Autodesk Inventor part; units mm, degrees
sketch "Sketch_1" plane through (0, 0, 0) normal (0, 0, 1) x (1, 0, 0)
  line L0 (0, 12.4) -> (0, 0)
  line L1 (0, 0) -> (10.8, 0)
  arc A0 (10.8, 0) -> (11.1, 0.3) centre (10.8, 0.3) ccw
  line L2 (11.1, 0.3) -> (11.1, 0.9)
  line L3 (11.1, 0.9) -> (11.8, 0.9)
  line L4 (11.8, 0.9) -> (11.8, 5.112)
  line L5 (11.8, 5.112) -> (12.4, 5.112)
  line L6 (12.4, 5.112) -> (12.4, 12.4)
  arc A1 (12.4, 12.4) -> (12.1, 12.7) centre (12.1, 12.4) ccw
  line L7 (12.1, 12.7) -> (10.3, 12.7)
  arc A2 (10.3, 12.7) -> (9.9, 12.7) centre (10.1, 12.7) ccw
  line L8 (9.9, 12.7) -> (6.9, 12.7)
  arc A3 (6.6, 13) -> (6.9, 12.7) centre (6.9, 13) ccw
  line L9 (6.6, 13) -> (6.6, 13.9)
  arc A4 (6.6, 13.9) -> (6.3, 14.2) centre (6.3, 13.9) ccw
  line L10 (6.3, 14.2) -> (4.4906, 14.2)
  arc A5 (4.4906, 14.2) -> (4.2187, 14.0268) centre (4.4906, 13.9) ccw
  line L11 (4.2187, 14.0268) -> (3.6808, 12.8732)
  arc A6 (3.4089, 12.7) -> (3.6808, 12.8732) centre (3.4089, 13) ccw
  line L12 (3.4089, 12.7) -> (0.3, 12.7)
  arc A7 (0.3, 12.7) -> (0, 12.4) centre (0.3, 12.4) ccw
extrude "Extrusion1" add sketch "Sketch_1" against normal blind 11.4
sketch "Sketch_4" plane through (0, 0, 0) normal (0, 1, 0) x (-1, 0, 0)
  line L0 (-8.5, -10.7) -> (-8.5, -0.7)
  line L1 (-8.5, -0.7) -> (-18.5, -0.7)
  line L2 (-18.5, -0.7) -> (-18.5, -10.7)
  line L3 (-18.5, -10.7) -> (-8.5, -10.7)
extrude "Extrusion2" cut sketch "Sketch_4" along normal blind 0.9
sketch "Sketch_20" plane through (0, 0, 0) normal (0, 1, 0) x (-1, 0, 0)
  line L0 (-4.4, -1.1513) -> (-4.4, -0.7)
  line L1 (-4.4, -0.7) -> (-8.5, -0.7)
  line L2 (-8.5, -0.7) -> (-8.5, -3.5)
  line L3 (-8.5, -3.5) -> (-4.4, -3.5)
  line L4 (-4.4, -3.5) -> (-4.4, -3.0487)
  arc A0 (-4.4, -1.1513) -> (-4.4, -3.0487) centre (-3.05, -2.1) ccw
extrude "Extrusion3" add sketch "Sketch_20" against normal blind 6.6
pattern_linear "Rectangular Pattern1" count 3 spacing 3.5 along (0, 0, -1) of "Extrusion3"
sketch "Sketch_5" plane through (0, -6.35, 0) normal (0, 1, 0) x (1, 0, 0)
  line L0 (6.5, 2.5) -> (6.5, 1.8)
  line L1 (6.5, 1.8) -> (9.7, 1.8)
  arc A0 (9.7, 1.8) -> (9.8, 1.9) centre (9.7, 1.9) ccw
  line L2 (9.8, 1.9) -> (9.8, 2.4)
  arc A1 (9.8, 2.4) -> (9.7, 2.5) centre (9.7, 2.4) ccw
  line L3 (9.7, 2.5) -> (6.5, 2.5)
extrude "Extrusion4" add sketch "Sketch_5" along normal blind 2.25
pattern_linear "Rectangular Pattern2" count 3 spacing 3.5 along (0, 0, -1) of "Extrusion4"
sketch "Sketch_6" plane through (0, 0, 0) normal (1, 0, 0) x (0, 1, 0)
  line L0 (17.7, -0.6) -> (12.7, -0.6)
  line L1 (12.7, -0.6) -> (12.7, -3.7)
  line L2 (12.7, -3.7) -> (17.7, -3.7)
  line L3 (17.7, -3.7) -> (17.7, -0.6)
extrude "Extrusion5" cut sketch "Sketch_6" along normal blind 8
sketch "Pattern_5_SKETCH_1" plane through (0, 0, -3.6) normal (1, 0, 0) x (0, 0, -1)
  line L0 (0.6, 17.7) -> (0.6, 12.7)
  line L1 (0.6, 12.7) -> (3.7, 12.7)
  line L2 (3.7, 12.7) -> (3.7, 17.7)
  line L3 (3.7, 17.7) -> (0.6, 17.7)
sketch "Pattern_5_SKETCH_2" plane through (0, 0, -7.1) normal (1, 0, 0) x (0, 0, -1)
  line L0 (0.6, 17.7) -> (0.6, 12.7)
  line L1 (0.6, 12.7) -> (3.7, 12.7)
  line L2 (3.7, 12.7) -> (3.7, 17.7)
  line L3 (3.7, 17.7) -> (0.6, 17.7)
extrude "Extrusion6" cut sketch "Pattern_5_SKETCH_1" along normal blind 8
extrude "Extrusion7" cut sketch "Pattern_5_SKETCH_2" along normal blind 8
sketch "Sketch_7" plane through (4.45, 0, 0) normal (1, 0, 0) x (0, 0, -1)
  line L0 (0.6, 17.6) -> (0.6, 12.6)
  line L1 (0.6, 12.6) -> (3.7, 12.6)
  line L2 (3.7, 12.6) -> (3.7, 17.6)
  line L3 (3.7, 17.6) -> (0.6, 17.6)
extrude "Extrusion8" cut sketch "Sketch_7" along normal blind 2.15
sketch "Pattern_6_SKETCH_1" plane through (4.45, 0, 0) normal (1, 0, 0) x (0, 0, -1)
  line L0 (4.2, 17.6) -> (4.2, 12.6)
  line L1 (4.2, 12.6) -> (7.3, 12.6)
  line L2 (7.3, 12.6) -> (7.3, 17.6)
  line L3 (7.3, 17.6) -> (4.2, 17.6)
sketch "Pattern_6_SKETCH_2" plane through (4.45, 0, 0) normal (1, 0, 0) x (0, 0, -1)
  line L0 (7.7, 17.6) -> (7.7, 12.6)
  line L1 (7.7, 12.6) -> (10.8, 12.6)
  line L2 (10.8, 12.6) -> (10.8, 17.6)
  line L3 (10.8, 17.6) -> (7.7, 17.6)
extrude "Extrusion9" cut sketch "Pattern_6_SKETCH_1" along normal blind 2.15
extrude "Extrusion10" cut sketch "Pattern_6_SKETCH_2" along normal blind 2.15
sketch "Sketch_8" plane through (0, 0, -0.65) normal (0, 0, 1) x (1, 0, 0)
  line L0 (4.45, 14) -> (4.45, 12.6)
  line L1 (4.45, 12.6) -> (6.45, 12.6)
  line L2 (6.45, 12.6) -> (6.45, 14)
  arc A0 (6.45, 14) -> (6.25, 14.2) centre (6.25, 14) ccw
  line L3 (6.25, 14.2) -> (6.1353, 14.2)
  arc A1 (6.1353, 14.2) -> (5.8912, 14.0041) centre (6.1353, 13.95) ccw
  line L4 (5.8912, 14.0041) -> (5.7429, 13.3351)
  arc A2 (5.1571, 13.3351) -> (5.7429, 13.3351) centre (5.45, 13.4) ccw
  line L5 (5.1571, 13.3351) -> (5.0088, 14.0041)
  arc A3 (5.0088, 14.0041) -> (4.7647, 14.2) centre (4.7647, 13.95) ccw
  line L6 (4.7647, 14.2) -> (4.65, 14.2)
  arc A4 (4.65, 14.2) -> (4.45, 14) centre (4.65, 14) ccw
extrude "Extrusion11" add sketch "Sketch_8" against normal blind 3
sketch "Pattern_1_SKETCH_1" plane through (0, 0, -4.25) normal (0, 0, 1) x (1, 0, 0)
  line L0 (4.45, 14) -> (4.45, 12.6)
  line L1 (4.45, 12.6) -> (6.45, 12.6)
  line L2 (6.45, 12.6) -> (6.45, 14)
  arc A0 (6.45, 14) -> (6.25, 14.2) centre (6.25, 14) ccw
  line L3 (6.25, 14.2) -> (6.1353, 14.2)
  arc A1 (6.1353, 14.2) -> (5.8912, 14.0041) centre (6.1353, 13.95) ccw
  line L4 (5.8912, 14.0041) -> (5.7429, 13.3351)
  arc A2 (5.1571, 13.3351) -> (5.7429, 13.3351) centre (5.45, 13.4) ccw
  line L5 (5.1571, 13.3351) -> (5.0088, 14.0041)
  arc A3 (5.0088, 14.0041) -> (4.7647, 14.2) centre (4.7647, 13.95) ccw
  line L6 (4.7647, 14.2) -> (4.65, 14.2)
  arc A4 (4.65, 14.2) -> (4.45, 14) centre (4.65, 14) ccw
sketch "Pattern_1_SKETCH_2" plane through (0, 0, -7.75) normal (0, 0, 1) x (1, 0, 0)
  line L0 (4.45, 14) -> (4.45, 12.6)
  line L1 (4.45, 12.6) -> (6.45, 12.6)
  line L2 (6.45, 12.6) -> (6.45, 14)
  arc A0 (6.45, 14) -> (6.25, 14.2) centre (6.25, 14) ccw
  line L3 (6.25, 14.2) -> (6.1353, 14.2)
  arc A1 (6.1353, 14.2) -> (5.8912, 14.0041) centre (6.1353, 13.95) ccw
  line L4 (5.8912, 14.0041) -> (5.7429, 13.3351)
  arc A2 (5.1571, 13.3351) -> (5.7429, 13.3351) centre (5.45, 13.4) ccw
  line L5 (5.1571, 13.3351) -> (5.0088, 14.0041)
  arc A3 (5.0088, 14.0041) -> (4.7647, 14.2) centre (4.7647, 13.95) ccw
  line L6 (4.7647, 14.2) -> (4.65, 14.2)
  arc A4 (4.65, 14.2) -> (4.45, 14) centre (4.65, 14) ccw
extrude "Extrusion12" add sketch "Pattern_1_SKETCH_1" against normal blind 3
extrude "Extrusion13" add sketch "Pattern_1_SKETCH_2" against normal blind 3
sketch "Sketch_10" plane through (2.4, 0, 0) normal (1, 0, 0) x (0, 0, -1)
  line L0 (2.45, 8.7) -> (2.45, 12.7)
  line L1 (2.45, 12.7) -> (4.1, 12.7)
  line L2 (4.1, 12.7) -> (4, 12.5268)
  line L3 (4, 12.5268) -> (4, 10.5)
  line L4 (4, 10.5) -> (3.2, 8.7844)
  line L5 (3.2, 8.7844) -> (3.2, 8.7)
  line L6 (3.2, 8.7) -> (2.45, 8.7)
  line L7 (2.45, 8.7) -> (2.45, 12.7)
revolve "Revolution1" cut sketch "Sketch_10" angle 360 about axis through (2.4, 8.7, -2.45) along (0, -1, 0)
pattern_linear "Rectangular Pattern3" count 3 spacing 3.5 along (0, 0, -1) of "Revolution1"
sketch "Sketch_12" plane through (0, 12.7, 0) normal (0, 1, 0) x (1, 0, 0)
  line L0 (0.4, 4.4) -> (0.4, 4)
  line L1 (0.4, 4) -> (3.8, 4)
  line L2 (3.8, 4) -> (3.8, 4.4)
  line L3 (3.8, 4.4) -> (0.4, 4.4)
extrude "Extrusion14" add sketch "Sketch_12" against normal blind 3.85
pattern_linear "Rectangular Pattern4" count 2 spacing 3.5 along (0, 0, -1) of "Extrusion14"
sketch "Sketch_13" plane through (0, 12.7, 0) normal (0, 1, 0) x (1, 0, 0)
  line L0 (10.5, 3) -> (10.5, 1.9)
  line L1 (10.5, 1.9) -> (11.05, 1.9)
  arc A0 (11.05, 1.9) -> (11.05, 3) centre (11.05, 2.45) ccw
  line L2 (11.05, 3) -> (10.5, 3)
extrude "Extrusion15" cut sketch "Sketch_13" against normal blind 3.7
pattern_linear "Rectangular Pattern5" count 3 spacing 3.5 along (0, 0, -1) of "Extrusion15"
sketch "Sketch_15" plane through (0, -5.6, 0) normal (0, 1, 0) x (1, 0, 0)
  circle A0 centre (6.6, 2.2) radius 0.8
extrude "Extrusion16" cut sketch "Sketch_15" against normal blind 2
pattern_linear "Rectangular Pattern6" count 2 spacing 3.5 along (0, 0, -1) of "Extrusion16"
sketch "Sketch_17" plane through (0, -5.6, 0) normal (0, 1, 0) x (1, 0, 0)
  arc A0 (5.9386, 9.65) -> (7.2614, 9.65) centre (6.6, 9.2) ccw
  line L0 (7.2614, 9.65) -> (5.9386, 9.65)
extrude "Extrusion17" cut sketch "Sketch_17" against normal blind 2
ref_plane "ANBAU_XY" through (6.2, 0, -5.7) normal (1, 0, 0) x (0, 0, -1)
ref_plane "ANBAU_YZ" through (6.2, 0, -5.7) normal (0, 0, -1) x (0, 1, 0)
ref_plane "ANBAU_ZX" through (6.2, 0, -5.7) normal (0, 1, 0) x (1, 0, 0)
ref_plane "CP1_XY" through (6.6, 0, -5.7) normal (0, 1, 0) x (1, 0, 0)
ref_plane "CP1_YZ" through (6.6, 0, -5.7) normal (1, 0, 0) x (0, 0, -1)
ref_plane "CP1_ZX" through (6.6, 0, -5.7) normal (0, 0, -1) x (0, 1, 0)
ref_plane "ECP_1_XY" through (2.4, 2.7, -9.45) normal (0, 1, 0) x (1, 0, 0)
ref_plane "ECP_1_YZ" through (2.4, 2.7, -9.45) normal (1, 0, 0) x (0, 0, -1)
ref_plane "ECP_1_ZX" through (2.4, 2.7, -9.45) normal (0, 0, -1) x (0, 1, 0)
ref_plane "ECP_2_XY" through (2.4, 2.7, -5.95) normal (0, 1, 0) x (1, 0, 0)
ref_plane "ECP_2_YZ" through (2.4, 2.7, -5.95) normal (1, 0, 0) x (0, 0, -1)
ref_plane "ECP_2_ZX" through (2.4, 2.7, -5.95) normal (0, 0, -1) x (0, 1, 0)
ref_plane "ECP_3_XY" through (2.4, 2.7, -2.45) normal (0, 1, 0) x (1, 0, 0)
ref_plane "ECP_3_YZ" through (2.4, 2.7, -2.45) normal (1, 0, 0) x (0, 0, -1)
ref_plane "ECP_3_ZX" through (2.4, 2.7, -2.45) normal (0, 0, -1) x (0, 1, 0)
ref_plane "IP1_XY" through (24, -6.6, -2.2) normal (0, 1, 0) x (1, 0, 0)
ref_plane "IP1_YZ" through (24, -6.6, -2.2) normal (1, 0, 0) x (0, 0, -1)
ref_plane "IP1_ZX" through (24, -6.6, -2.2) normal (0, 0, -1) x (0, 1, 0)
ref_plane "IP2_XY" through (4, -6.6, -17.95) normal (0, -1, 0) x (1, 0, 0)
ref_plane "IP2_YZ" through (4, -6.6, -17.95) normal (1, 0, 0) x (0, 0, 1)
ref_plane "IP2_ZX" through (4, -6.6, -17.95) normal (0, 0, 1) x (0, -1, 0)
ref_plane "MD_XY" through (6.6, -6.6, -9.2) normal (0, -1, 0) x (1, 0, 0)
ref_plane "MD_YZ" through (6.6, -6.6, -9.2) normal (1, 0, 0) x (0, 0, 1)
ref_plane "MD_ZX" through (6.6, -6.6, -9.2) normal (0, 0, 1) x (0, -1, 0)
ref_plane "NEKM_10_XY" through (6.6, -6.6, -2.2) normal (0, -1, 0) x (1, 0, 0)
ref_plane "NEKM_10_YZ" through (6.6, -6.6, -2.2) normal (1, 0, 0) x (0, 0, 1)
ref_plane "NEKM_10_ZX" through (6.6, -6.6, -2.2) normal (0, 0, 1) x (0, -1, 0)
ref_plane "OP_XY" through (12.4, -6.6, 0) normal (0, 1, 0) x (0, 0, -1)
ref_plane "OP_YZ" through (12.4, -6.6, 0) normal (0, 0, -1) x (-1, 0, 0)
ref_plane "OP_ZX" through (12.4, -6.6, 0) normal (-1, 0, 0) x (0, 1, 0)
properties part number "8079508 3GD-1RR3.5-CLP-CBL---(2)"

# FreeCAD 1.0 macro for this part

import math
import FreeCAD as App
import Part
import Sketcher
Q = App.Units.Quantity


def add_polygon(sketch, points):
    """Adds a closed chain of lines whose ends are joined by coincident constraints."""
    first, n = sketch.GeometryCount, len(points)
    for a, b in zip(points, points[1:] + points[:1]):
        sketch.addGeometry(Part.LineSegment(App.Vector(*a, 0), App.Vector(*b, 0)), False)
    for i in range(n):
        sketch.addConstraint(Sketcher.Constraint("Coincident", first + i, 2, first + (i + 1) % n, 1))

doc = App.newDocument("Part")
body = doc.addObject("PartDesign::Body", "Body")

# Sketch on XY plane
sketch1 = body.newObject("Sketcher::SketchObject", "Sketch")
sketch1.AttachmentSupport = (doc.getObject("XY_Plane"), [""])
sketch1.MapMode = "FlatFace"
sketch1.addGeometry([
    Part.ArcOfCircle(Part.Circle(App.Vector(0.3, 12.4, 0), App.Vector(0, 0, 1), 0.3), math.radians(90), math.radians(180)),  # 0
    Part.LineSegment(App.Vector(0, 12.4, 0), App.Vector(0, 0, 0)),  # 1
    Part.LineSegment(App.Vector(0, 0, 0), App.Vector(10.8, 0, 0)),  # 2
    Part.ArcOfCircle(Part.Circle(App.Vector(10.8, 0.3, 0), App.Vector(0, 0, 1), 0.3), math.radians(-90), math.radians(0)),  # 3
    Part.LineSegment(App.Vector(11.1, 0.3, 0), App.Vector(11.1, 0.9, 0)),  # 4
    Part.LineSegment(App.Vector(11.1, 0.9, 0), App.Vector(11.8, 0.9, 0)),  # 5
    Part.LineSegment(App.Vector(11.8, 0.9, 0), App.Vector(11.8, 5.11, 0)),  # 6
    Part.LineSegment(App.Vector(11.8, 5.11, 0), App.Vector(12.4, 5.11, 0)),  # 7
    Part.LineSegment(App.Vector(12.4, 5.11, 0), App.Vector(12.4, 12.4, 0)),  # 8
    Part.ArcOfCircle(Part.Circle(App.Vector(12.1, 12.4, 0), App.Vector(0, 0, 1), 0.3), math.radians(0), math.radians(90)),  # 9
    Part.LineSegment(App.Vector(12.1, 12.7, 0), App.Vector(10.3, 12.7, 0)),  # 10
    Part.ArcOfCircle(Part.Circle(App.Vector(10.1, 12.7, 0), App.Vector(0, 0, 1), 0.2), math.radians(0), math.radians(180)),  # 11
    Part.LineSegment(App.Vector(9.9, 12.7, 0), App.Vector(6.9, 12.7, 0)),  # 12
    Part.ArcOfCircle(Part.Circle(App.Vector(6.9, 13, 0), App.Vector(0, 0, 1), 0.3), math.radians(180), math.radians(270)),  # 13
    Part.LineSegment(App.Vector(6.6, 13, 0), App.Vector(6.6, 13.9, 0)),  # 14
    Part.ArcOfCircle(Part.Circle(App.Vector(6.3, 13.9, 0), App.Vector(0, 0, 1), 0.3), math.radians(0), math.radians(90)),  # 15
    Part.LineSegment(App.Vector(6.3, 14.2, 0), App.Vector(4.49, 14.2, 0)),  # 16
    Part.ArcOfCircle(Part.Circle(App.Vector(4.49, 13.9, 0), App.Vector(0, 0, 1), 0.3), math.radians(90), math.radians(155)),  # 17
    Part.LineSegment(App.Vector(4.22, 14.03, 0), App.Vector(3.68, 12.87, 0)),  # 18
    Part.ArcOfCircle(Part.Circle(App.Vector(3.41, 13, 0), App.Vector(0, 0, 1), 0.3), math.radians(-90), math.radians(-25)),  # 19
    Part.LineSegment(App.Vector(3.41, 12.7, 0), App.Vector(0.3, 12.7, 0)),  # 20
], False)
sketch1.addConstraint([
    Sketcher.Constraint("Tangent", 0, 2, 1, 1),
    Sketcher.Constraint("Coincident", 1, 2, 2, 1),
    Sketcher.Constraint("Tangent", 2, 2, 3, 1),
    Sketcher.Constraint("Tangent", 3, 2, 4, 1),
    Sketcher.Constraint("Coincident", 4, 2, 5, 1),
    Sketcher.Constraint("Coincident", 5, 2, 6, 1),
    Sketcher.Constraint("Coincident", 6, 2, 7, 1),
    Sketcher.Constraint("Coincident", 7, 2, 8, 1),
    Sketcher.Constraint("Tangent", 8, 2, 9, 1),
    Sketcher.Constraint("Tangent", 9, 2, 10, 1),
    Sketcher.Constraint("Coincident", 10, 2, 11, 1),
    Sketcher.Constraint("Coincident", 11, 2, 12, 1),
    Sketcher.Constraint("Tangent", 12, 2, 13, 2),
    Sketcher.Constraint("Tangent", 13, 1, 14, 1),
    Sketcher.Constraint("Tangent", 14, 2, 15, 1),
    Sketcher.Constraint("Tangent", 15, 2, 16, 1),
    Sketcher.Constraint("Tangent", 16, 2, 17, 1),
    Sketcher.Constraint("Tangent", 17, 2, 18, 1),
    Sketcher.Constraint("Tangent", 18, 2, 19, 2),
    Sketcher.Constraint("Tangent", 19, 1, 20, 1),
    Sketcher.Constraint("Tangent", 20, 2, 0, 1),
    Sketcher.Constraint("Vertical", 1),
    Sketcher.Constraint("Horizontal", 2),
    Sketcher.Constraint("Vertical", 4),
    Sketcher.Constraint("Horizontal", 5),
    Sketcher.Constraint("Vertical", 6),
    Sketcher.Constraint("Horizontal", 7),
    Sketcher.Constraint("Vertical", 8),
    Sketcher.Constraint("Horizontal", 10),
    Sketcher.Constraint("Horizontal", 12),
    Sketcher.Constraint("Vertical", 14),
    Sketcher.Constraint("Horizontal", 16),
    Sketcher.Constraint("Horizontal", 20),
    Sketcher.Constraint("Coincident", 1, 2, -1, 1),
    Sketcher.Constraint("Equal", 0, 3),
    Sketcher.Constraint("Equal", 3, 9),
    Sketcher.Constraint("Equal", 9, 13),
    Sketcher.Constraint("Equal", 13, 15),
    Sketcher.Constraint("Equal", 15, 17),
    Sketcher.Constraint("Equal", 17, 19),
    Sketcher.Constraint("Horizontal", 0, 3, 9, 3),
    Sketcher.Constraint("Horizontal", 13, 3, 19, 3),
    Sketcher.Constraint("Horizontal", 11, 3, 9, 2),
    Sketcher.Constraint("Equal", 7, 4),
    Sketcher.Constraint("Radius", 0, 0.3),
    Sketcher.Constraint("Radius", 11, 0.2),
    Sketcher.Constraint("DistanceX", 12, 2, 12, 1, 3.0),
    Sketcher.Constraint("DistanceX", 2, 1, 2, 2, 10.8),
    Sketcher.Constraint("DistanceX", 5, 1, 5, 2, 0.7),
    Sketcher.Constraint("DistanceX", 7, 1, 7, 2, 0.6),
    Sketcher.Constraint("DistanceX", 10, 2, 10, 1, 1.8),
    Sketcher.Constraint("DistanceY", 1, 2, 1, 1, 12.4),
    Sketcher.Constraint("DistanceY", 14, 1, 14, 2, 0.9),
    Sketcher.Constraint("DistanceX", 20, 2, 20, 1, 3.109),
    Sketcher.Constraint("DistanceY", 6, 1, 6, 2, 4.212),
    Sketcher.Constraint("DistanceX", 16, 2, 16, 1, 1.8094),
])
pad1 = body.newObject("PartDesign::Pad", "Pad")
pad1.Profile = sketch1
pad1.Length = 11.4
pad1.Reversed = True

# Sketch on XZ plane
sketch2 = body.newObject("Sketcher::SketchObject", "Sketch001")
sketch2.AttachmentSupport = (doc.getObject("XZ_Plane"), [""])
sketch2.MapMode = "FlatFace"
add_polygon(sketch2, [(18, -11), (8, -11), (8, -1), (18, -1)])  # lines 0-3
sketch2.addConstraint([
    Sketcher.Constraint("Horizontal", 0),
    Sketcher.Constraint("Vertical", 1),
    Sketcher.Constraint("Horizontal", 2),
    Sketcher.Constraint("Vertical", 3),
    Sketcher.Constraint("Equal", 2, 1),
    Sketcher.Constraint("DistanceX", 0, 2, 0, 1, 10.0),
    Sketcher.Constraint("DistanceX", -1, 1, 0, 2, 8.5),
    Sketcher.Constraint("DistanceY", 0, 2, -1, 1, 10.7),
])
pocket1 = body.newObject("PartDesign::Pocket", "Pocket")
pocket1.Profile = sketch2
pocket1.Length = 0.9

# Sketch on XZ plane
sketch3 = body.newObject("Sketcher::SketchObject", "Sketch002")
sketch3.AttachmentSupport = (doc.getObject("XZ_Plane"), [""])
sketch3.MapMode = "FlatFace"
sketch3.addGeometry([
    Part.ArcOfCircle(Part.Circle(App.Vector(3.05, -2.1, 0), App.Vector(0, 0, 1), 1.65), math.radians(-35), math.radians(35)),  # 0
    Part.LineSegment(App.Vector(4.4, -1.15, 0), App.Vector(4.4, -0.7, 0)),  # 1
    Part.LineSegment(App.Vector(4.4, -0.7, 0), App.Vector(8.5, -0.7, 0)),  # 2
    Part.LineSegment(App.Vector(8.5, -0.7, 0), App.Vector(8.5, -3.5, 0)),  # 3
    Part.LineSegment(App.Vector(8.5, -3.5, 0), App.Vector(4.4, -3.5, 0)),  # 4
    Part.LineSegment(App.Vector(4.4, -3.5, 0), App.Vector(4.4, -3.05, 0)),  # 5
], False)
sketch3.addConstraint([
    Sketcher.Constraint("Coincident", 0, 2, 1, 1),
    Sketcher.Constraint("Coincident", 1, 2, 2, 1),
    Sketcher.Constraint("Coincident", 2, 2, 3, 1),
    Sketcher.Constraint("Coincident", 3, 2, 4, 1),
    Sketcher.Constraint("Coincident", 4, 2, 5, 1),
    Sketcher.Constraint("Coincident", 5, 2, 0, 1),
    Sketcher.Constraint("Vertical", 1),
    Sketcher.Constraint("Horizontal", 2),
    Sketcher.Constraint("Vertical", 3),
    Sketcher.Constraint("Horizontal", 4),
    Sketcher.Constraint("Vertical", 5),
    Sketcher.Constraint("Vertical", 1, 2, 4, 2),
    Sketcher.Constraint("Equal", 1, 5),
    Sketcher.Constraint("Radius", 0, 1.65),
    Sketcher.Constraint("DistanceX", 2, 1, 2, 2, 4.1),
    Sketcher.Constraint("DistanceY", 3, 2, 3, 1, 2.8),
    Sketcher.Constraint("DistanceY", 0, 3, -1, 1, 2.1),
    Sketcher.Constraint("DistanceX", -1, 1, 0, 2, 4.4),
    Sketcher.Constraint("DistanceX", -1, 1, 0, 3, 3.05),
])
pad2 = body.newObject("PartDesign::Pad", "Pad001")
pad2.Profile = sketch3
pad2.Length = 6.6
doc.recompute()

linearpattern = body.newObject("PartDesign::LinearPattern", "LinearPattern")
linearpattern.Originals = [pad2]
linearpattern.Direction = (doc.getObject("Z_Axis"), [""])
linearpattern.Mode = "offset"
linearpattern.Offset = 3.5
linearpattern.Occurrences = 3
linearpattern.Reversed = True
body.Tip = linearpattern

# Sketch on XZ plane
sketch4 = body.newObject("Sketcher::SketchObject", "Sketch003")
sketch4.AttachmentSupport = (doc.getObject("XZ_Plane"), [""])
sketch4.MapMode = "FlatFace"
sketch4.AttachmentOffset = App.Placement(App.Vector(0, 0, 6.35), App.Rotation())
sketch4.addGeometry([
    Part.LineSegment(App.Vector(9.7, -2.5, 0), App.Vector(6.5, -2.5, 0)),  # 0
    Part.LineSegment(App.Vector(6.5, -2.5, 0), App.Vector(6.5, -1.8, 0)),  # 1
    Part.LineSegment(App.Vector(6.5, -1.8, 0), App.Vector(9.7, -1.8, 0)),  # 2
    Part.ArcOfCircle(Part.Circle(App.Vector(9.7, -1.9, 0), App.Vector(0, 0, 1), 0.1), math.radians(0), math.radians(90)),  # 3
    Part.LineSegment(App.Vector(9.8, -1.9, 0), App.Vector(9.8, -2.4, 0)),  # 4
    Part.ArcOfCircle(Part.Circle(App.Vector(9.7, -2.4, 0), App.Vector(0, 0, 1), 0.1), math.radians(-90), math.radians(0)),  # 5
], False)
sketch4.addConstraint([
    Sketcher.Constraint("Coincident", 0, 2, 1, 1),
    Sketcher.Constraint("Coincident", 1, 2, 2, 1),
    Sketcher.Constraint("Tangent", 2, 2, 3, 2),
    Sketcher.Constraint("Tangent", 3, 1, 4, 1),
    Sketcher.Constraint("Tangent", 4, 2, 5, 2),
    Sketcher.Constraint("Tangent", 5, 1, 0, 1),
    Sketcher.Constraint("Horizontal", 0),
    Sketcher.Constraint("Vertical", 1),
    Sketcher.Constraint("Horizontal", 2),
    Sketcher.Constraint("Vertical", 4),
    Sketcher.Constraint("Equal", 3, 5),
    Sketcher.Constraint("Radius", 3, 0.1),
    Sketcher.Constraint("DistanceX", 0, 2, 0, 1, 3.2),
    Sketcher.Constraint("DistanceY", 1, 1, 1, 2, 0.7),
    Sketcher.Constraint("DistanceX", -1, 1, 3, 3, 9.7),
    Sketcher.Constraint("DistanceY", 3, 3, -1, 1, 1.9),
])
pad3 = body.newObject("PartDesign::Pad", "Pad002")
pad3.Profile = sketch4
pad3.Length = 2.25
pad3.Reversed = True
doc.recompute()

linearpattern2 = body.newObject("PartDesign::LinearPattern", "LinearPattern001")
linearpattern2.Originals = [pad3]
linearpattern2.Direction = (doc.getObject("Z_Axis"), [""])
linearpattern2.Mode = "offset"
linearpattern2.Offset = 3.5
linearpattern2.Occurrences = 3
linearpattern2.Reversed = True
body.Tip = linearpattern2

# Sketch on YZ plane
sketch5 = body.newObject("Sketcher::SketchObject", "Sketch004")
sketch5.AttachmentSupport = (doc.getObject("YZ_Plane"), [""])
sketch5.MapMode = "FlatFace"
add_polygon(sketch5, [(17.7, -3.7), (17.7, -0.6), (12.7, -0.6), (12.7, -3.7)])  # lines 0-3
sketch5.addConstraint([
    Sketcher.Constraint("Vertical", 0),
    Sketcher.Constraint("Horizontal", 1),
    Sketcher.Constraint("Vertical", 2),
    Sketcher.Constraint("Horizontal", 3),
    Sketcher.Constraint("DistanceX", 1, 2, 1, 1, 5.0),
    Sketcher.Constraint("DistanceY", 0, 1, 0, 2, 3.1),
    Sketcher.Constraint("DistanceX", -1, 1, 0, 2, 17.7),
    Sketcher.Constraint("DistanceY", 0, 2, -1, 1, 0.6),
])
pocket2 = body.newObject("PartDesign::Pocket", "Pocket001")
pocket2.Profile = sketch5
pocket2.Length = 8
pocket2.Reversed = True

# Sketch on YZ plane
sketch6 = body.newObject("Sketcher::SketchObject", "Sketch005")
sketch6.AttachmentSupport = (doc.getObject("YZ_Plane"), [""])
sketch6.MapMode = "FlatFace"
add_polygon(sketch6, [(17.7, -7.3), (17.7, -4.2), (12.7, -4.2), (12.7, -7.3)])  # lines 0-3
sketch6.addConstraint([
    Sketcher.Constraint("Vertical", 0),
    Sketcher.Constraint("Horizontal", 1),
    Sketcher.Constraint("Vertical", 2),
    Sketcher.Constraint("Horizontal", 3),
    Sketcher.Constraint("DistanceX", 1, 2, 1, 1, 5.0),
    Sketcher.Constraint("DistanceY", 0, 1, 0, 2, 3.1),
    Sketcher.Constraint("DistanceX", -1, 1, 0, 2, 17.7),
    Sketcher.Constraint("DistanceY", 0, 2, -1, 1, 4.2),
])
pocket3 = body.newObject("PartDesign::Pocket", "Pocket002")
pocket3.Profile = sketch6
pocket3.Length = 8
pocket3.Reversed = True

# Sketch on YZ plane
sketch7 = body.newObject("Sketcher::SketchObject", "Sketch006")
sketch7.AttachmentSupport = (doc.getObject("YZ_Plane"), [""])
sketch7.MapMode = "FlatFace"
add_polygon(sketch7, [(17.7, -10.8), (17.7, -7.7), (12.7, -7.7), (12.7, -10.8)])  # lines 0-3
sketch7.addConstraint([
    Sketcher.Constraint("Vertical", 0),
    Sketcher.Constraint("Horizontal", 1),
    Sketcher.Constraint("Vertical", 2),
    Sketcher.Constraint("Horizontal", 3),
    Sketcher.Constraint("DistanceX", 1, 2, 1, 1, 5.0),
    Sketcher.Constraint("DistanceY", 0, 1, 0, 2, 3.1),
    Sketcher.Constraint("DistanceX", -1, 1, 0, 2, 17.7),
    Sketcher.Constraint("DistanceY", 0, 2, -1, 1, 7.7),
])
pocket4 = body.newObject("PartDesign::Pocket", "Pocket003")
pocket4.Profile = sketch7
pocket4.Length = 8
pocket4.Reversed = True

# Sketch on YZ plane
sketch8 = body.newObject("Sketcher::SketchObject", "Sketch007")
sketch8.AttachmentSupport = (doc.getObject("YZ_Plane"), [""])
sketch8.MapMode = "FlatFace"
sketch8.AttachmentOffset = App.Placement(App.Vector(0, 0, 4.45), App.Rotation())
add_polygon(sketch8, [(17.6, -3.7), (17.6, -0.6), (12.6, -0.6), (12.6, -3.7)])  # lines 0-3
sketch8.addConstraint([
    Sketcher.Constraint("Vertical", 0),
    Sketcher.Constraint("Horizontal", 1),
    Sketcher.Constraint("Vertical", 2),
    Sketcher.Constraint("Horizontal", 3),
    Sketcher.Constraint("DistanceX", 1, 2, 1, 1, 5.0),
    Sketcher.Constraint("DistanceY", 0, 1, 0, 2, 3.1),
    Sketcher.Constraint("DistanceX", -1, 1, 0, 2, 17.6),
    Sketcher.Constraint("DistanceY", 0, 2, -1, 1, 0.6),
])
pocket5 = body.newObject("PartDesign::Pocket", "Pocket004")
pocket5.Profile = sketch8
pocket5.Length = 2.15
pocket5.Reversed = True

# Sketch on YZ plane
sketch9 = body.newObject("Sketcher::SketchObject", "Sketch008")
sketch9.AttachmentSupport = (doc.getObject("YZ_Plane"), [""])
sketch9.MapMode = "FlatFace"
sketch9.AttachmentOffset = App.Placement(App.Vector(0, 0, 4.45), App.Rotation())
add_polygon(sketch9, [(17.6, -7.3), (17.6, -4.2), (12.6, -4.2), (12.6, -7.3)])  # lines 0-3
sketch9.addConstraint([
    Sketcher.Constraint("Vertical", 0),
    Sketcher.Constraint("Horizontal", 1),
    Sketcher.Constraint("Vertical", 2),
    Sketcher.Constraint("Horizontal", 3),
    Sketcher.Constraint("DistanceX", 1, 2, 1, 1, 5.0),
    Sketcher.Constraint("DistanceY", 0, 1, 0, 2, 3.1),
    Sketcher.Constraint("DistanceX", -1, 1, 0, 2, 17.6),
    Sketcher.Constraint("DistanceY", 0, 2, -1, 1, 4.2),
])
pocket6 = body.newObject("PartDesign::Pocket", "Pocket005")
pocket6.Profile = sketch9
pocket6.Length = 2.15
pocket6.Reversed = True

# Sketch on YZ plane
sketch10 = body.newObject("Sketcher::SketchObject", "Sketch009")
sketch10.AttachmentSupport = (doc.getObject("YZ_Plane"), [""])
sketch10.MapMode = "FlatFace"
sketch10.AttachmentOffset = App.Placement(App.Vector(0, 0, 4.45), App.Rotation())
add_polygon(sketch10, [(17.6, -10.8), (17.6, -7.7), (12.6, -7.7), (12.6, -10.8)])  # lines 0-3
sketch10.addConstraint([
    Sketcher.Constraint("Vertical", 0),
    Sketcher.Constraint("Horizontal", 1),
    Sketcher.Constraint("Vertical", 2),
    Sketcher.Constraint("Horizontal", 3),
    Sketcher.Constraint("DistanceX", 1, 2, 1, 1, 5.0),
    Sketcher.Constraint("DistanceY", 0, 1, 0, 2, 3.1),
    Sketcher.Constraint("DistanceX", -1, 1, 0, 2, 17.6),
    Sketcher.Constraint("DistanceY", 0, 2, -1, 1, 7.7),
])
pocket7 = body.newObject("PartDesign::Pocket", "Pocket006")
pocket7.Profile = sketch10
pocket7.Length = 2.15
pocket7.Reversed = True

# Sketch on XY plane
sketch11 = body.newObject("Sketcher::SketchObject", "Sketch010")
sketch11.AttachmentSupport = (doc.getObject("XY_Plane"), [""])
sketch11.MapMode = "FlatFace"
sketch11.AttachmentOffset = App.Placement(App.Vector(0, 0, -0.65), App.Rotation())
sketch11.addGeometry([
    Part.ArcOfCircle(Part.Circle(App.Vector(4.65, 14, 0), App.Vector(0, 0, 1), 0.2), math.radians(90), math.radians(180)),  # 0
    Part.LineSegment(App.Vector(4.45, 14, 0), App.Vector(4.45, 12.6, 0)),  # 1
    Part.LineSegment(App.Vector(4.45, 12.6, 0), App.Vector(6.45, 12.6, 0)),  # 2
    Part.LineSegment(App.Vector(6.45, 12.6, 0), App.Vector(6.45, 14, 0)),  # 3
    Part.ArcOfCircle(Part.Circle(App.Vector(6.25, 14, 0), App.Vector(0, 0, 1), 0.2), math.radians(0), math.radians(90)),  # 4
    Part.LineSegment(App.Vector(6.25, 14.2, 0), App.Vector(6.14, 14.2, 0)),  # 5
    Part.ArcOfCircle(Part.Circle(App.Vector(6.14, 13.95, 0), App.Vector(0, 0, 1), 0.25), math.radians(90), math.radians(168)),  # 6
    Part.LineSegment(App.Vector(5.89, 14, 0), App.Vector(5.74, 13.34, 0)),  # 7
    Part.ArcOfCircle(Part.Circle(App.Vector(5.45, 13.4, 0), App.Vector(0, 0, 1), 0.3), math.radians(-168), math.radians(-12)),  # 8
    Part.LineSegment(App.Vector(5.16, 13.34, 0), App.Vector(5.01, 14, 0)),  # 9
    Part.ArcOfCircle(Part.Circle(App.Vector(4.76, 13.95, 0), App.Vector(0, 0, 1), 0.25), math.radians(12), math.radians(90)),  # 10
    Part.LineSegment(App.Vector(4.76, 14.2, 0), App.Vector(4.65, 14.2, 0)),  # 11
], False)
sketch11.addConstraint([
    Sketcher.Constraint("Tangent", 0, 2, 1, 1),
    Sketcher.Constraint("Coincident", 1, 2, 2, 1),
    Sketcher.Constraint("Coincident", 2, 2, 3, 1),
    Sketcher.Constraint("Tangent", 3, 2, 4, 1),
    Sketcher.Constraint("Tangent", 4, 2, 5, 1),
    Sketcher.Constraint("Tangent", 5, 2, 6, 1),
    Sketcher.Constraint("Tangent", 6, 2, 7, 1),
    Sketcher.Constraint("Tangent", 7, 2, 8, 2),
    Sketcher.Constraint("Tangent", 8, 1, 9, 1),
    Sketcher.Constraint("Tangent", 9, 2, 10, 1),
    Sketcher.Constraint("Tangent", 10, 2, 11, 1),
    Sketcher.Constraint("Tangent", 11, 2, 0, 1),
    Sketcher.Constraint("Vertical", 1),
    Sketcher.Constraint("Horizontal", 2),
    Sketcher.Constraint("Vertical", 3),
    Sketcher.Constraint("Horizontal", 5),
    Sketcher.Constraint("Horizontal", 11),
    Sketcher.Constraint("Equal", 0, 4),
    Sketcher.Constraint("Equal", 6, 10),
    Sketcher.Constraint("Horizontal", 0, 3, 4, 3),
    Sketcher.Constraint("Horizontal", 7, 2, 8, 1),
    Sketcher.Constraint("Equal", 5, 11),
    Sketcher.Constraint("Radius", 0, 0.2),
    Sketcher.Constraint("Radius", 8, 0.3),
    Sketcher.Constraint("DistanceX", 2, 1, 2, 2, 2.0),
    Sketcher.Constraint("Radius", 6, 0.25),
    Sketcher.Constraint("DistanceY", 1, 2, 1, 1, 1.4),
    Sketcher.Constraint("DistanceY", -1, 1, 0, 3, 14.0),
    Sketcher.Constraint("Angle", 7, Q("-102.4989 deg")),
    Sketcher.Constraint("DistanceY", -1, 1, 8, 3, 13.4),
    Sketcher.Constraint("DistanceX", -1, 1, 0, 3, 4.65),
])
pad4 = body.newObject("PartDesign::Pad", "Pad003")
pad4.Profile = sketch11
pad4.Length = 3
pad4.Reversed = True

# Sketch on XY plane
sketch12 = body.newObject("Sketcher::SketchObject", "Sketch011")
sketch12.AttachmentSupport = (doc.getObject("XY_Plane"), [""])
sketch12.MapMode = "FlatFace"
sketch12.AttachmentOffset = App.Placement(App.Vector(0, 0, -4.25), App.Rotation())
sketch12.addGeometry([
    Part.ArcOfCircle(Part.Circle(App.Vector(4.65, 14, 0), App.Vector(0, 0, 1), 0.2), math.radians(90), math.radians(180)),  # 0
    Part.LineSegment(App.Vector(4.45, 14, 0), App.Vector(4.45, 12.6, 0)),  # 1
    Part.LineSegment(App.Vector(4.45, 12.6, 0), App.Vector(6.45, 12.6, 0)),  # 2
    Part.LineSegment(App.Vector(6.45, 12.6, 0), App.Vector(6.45, 14, 0)),  # 3
    Part.ArcOfCircle(Part.Circle(App.Vector(6.25, 14, 0), App.Vector(0, 0, 1), 0.2), math.radians(0), math.radians(90)),  # 4
    Part.LineSegment(App.Vector(6.25, 14.2, 0), App.Vector(6.14, 14.2, 0)),  # 5
    Part.ArcOfCircle(Part.Circle(App.Vector(6.14, 13.95, 0), App.Vector(0, 0, 1), 0.25), math.radians(90), math.radians(168)),  # 6
    Part.LineSegment(App.Vector(5.89, 14, 0), App.Vector(5.74, 13.34, 0)),  # 7
    Part.ArcOfCircle(Part.Circle(App.Vector(5.45, 13.4, 0), App.Vector(0, 0, 1), 0.3), math.radians(-168), math.radians(-12)),  # 8
    Part.LineSegment(App.Vector(5.16, 13.34, 0), App.Vector(5.01, 14, 0)),  # 9
    Part.ArcOfCircle(Part.Circle(App.Vector(4.76, 13.95, 0), App.Vector(0, 0, 1), 0.25), math.radians(12), math.radians(90)),  # 10
    Part.LineSegment(App.Vector(4.76, 14.2, 0), App.Vector(4.65, 14.2, 0)),  # 11
], False)
sketch12.addConstraint([
    Sketcher.Constraint("Tangent", 0, 2, 1, 1),
    Sketcher.Constraint("Coincident", 1, 2, 2, 1),
    Sketcher.Constraint("Coincident", 2, 2, 3, 1),
    Sketcher.Constraint("Tangent", 3, 2, 4, 1),
    Sketcher.Constraint("Tangent", 4, 2, 5, 1),
    Sketcher.Constraint("Tangent", 5, 2, 6, 1),
    Sketcher.Constraint("Tangent", 6, 2, 7, 1),
    Sketcher.Constraint("Tangent", 7, 2, 8, 2),
    Sketcher.Constraint("Tangent", 8, 1, 9, 1),
    Sketcher.Constraint("Tangent", 9, 2, 10, 1),
    Sketcher.Constraint("Tangent", 10, 2, 11, 1),
    Sketcher.Constraint("Tangent", 11, 2, 0, 1),
    Sketcher.Constraint("Vertical", 1),
    Sketcher.Constraint("Horizontal", 2),
    Sketcher.Constraint("Vertical", 3),
    Sketcher.Constraint("Horizontal", 5),
    Sketcher.Constraint("Horizontal", 11),
    Sketcher.Constraint("Equal", 0, 4),
    Sketcher.Constraint("Equal", 6, 10),
    Sketcher.Constraint("Horizontal", 0, 3, 4, 3),
    Sketcher.Constraint("Horizontal", 7, 2, 8, 1),
    Sketcher.Constraint("Equal", 5, 11),
    Sketcher.Constraint("Radius", 0, 0.2),
    Sketcher.Constraint("Radius", 8, 0.3),
    Sketcher.Constraint("DistanceX", 2, 1, 2, 2, 2.0),
    Sketcher.Constraint("Radius", 6, 0.25),
    Sketcher.Constraint("DistanceY", 1, 2, 1, 1, 1.4),
    Sketcher.Constraint("DistanceY", -1, 1, 0, 3, 14.0),
    Sketcher.Constraint("Angle", 7, Q("-102.4989 deg")),
    Sketcher.Constraint("DistanceY", -1, 1, 8, 3, 13.4),
    Sketcher.Constraint("DistanceX", -1, 1, 0, 3, 4.65),
])
pad5 = body.newObject("PartDesign::Pad", "Pad004")
pad5.Profile = sketch12
pad5.Length = 3
pad5.Reversed = True

# Sketch on XY plane
sketch13 = body.newObject("Sketcher::SketchObject", "Sketch012")
sketch13.AttachmentSupport = (doc.getObject("XY_Plane"), [""])
sketch13.MapMode = "FlatFace"
sketch13.AttachmentOffset = App.Placement(App.Vector(0, 0, -7.75), App.Rotation())
sketch13.addGeometry([
    Part.ArcOfCircle(Part.Circle(App.Vector(4.65, 14, 0), App.Vector(0, 0, 1), 0.2), math.radians(90), math.radians(180)),  # 0
    Part.LineSegment(App.Vector(4.45, 14, 0), App.Vector(4.45, 12.6, 0)),  # 1
    Part.LineSegment(App.Vector(4.45, 12.6, 0), App.Vector(6.45, 12.6, 0)),  # 2
    Part.LineSegment(App.Vector(6.45, 12.6, 0), App.Vector(6.45, 14, 0)),  # 3
    Part.ArcOfCircle(Part.Circle(App.Vector(6.25, 14, 0), App.Vector(0, 0, 1), 0.2), math.radians(0), math.radians(90)),  # 4
    Part.LineSegment(App.Vector(6.25, 14.2, 0), App.Vector(6.14, 14.2, 0)),  # 5
    Part.ArcOfCircle(Part.Circle(App.Vector(6.14, 13.95, 0), App.Vector(0, 0, 1), 0.25), math.radians(90), math.radians(168)),  # 6
    Part.LineSegment(App.Vector(5.89, 14, 0), App.Vector(5.74, 13.34, 0)),  # 7
    Part.ArcOfCircle(Part.Circle(App.Vector(5.45, 13.4, 0), App.Vector(0, 0, 1), 0.3), math.radians(-168), math.radians(-12)),  # 8
    Part.LineSegment(App.Vector(5.16, 13.34, 0), App.Vector(5.01, 14, 0)),  # 9
    Part.ArcOfCircle(Part.Circle(App.Vector(4.76, 13.95, 0), App.Vector(0, 0, 1), 0.25), math.radians(12), math.radians(90)),  # 10
    Part.LineSegment(App.Vector(4.76, 14.2, 0), App.Vector(4.65, 14.2, 0)),  # 11
], False)
sketch13.addConstraint([
    Sketcher.Constraint("Tangent", 0, 2, 1, 1),
    Sketcher.Constraint("Coincident", 1, 2, 2, 1),
    Sketcher.Constraint("Coincident", 2, 2, 3, 1),
    Sketcher.Constraint("Tangent", 3, 2, 4, 1),
    Sketcher.Constraint("Tangent", 4, 2, 5, 1),
    Sketcher.Constraint("Tangent", 5, 2, 6, 1),
    Sketcher.Constraint("Tangent", 6, 2, 7, 1),
    Sketcher.Constraint("Tangent", 7, 2, 8, 2),
    Sketcher.Constraint("Tangent", 8, 1, 9, 1),
    Sketcher.Constraint("Tangent", 9, 2, 10, 1),
    Sketcher.Constraint("Tangent", 10, 2, 11, 1),
    Sketcher.Constraint("Tangent", 11, 2, 0, 1),
    Sketcher.Constraint("Vertical", 1),
    Sketcher.Constraint("Horizontal", 2),
    Sketcher.Constraint("Vertical", 3),
    Sketcher.Constraint("Horizontal", 5),
    Sketcher.Constraint("Horizontal", 11),
    Sketcher.Constraint("Equal", 0, 4),
    Sketcher.Constraint("Equal", 6, 10),
    Sketcher.Constraint("Horizontal", 0, 3, 4, 3),
    Sketcher.Constraint("Horizontal", 7, 2, 8, 1),
    Sketcher.Constraint("Equal", 5, 11),
    Sketcher.Constraint("Radius", 0, 0.2),
    Sketcher.Constraint("Radius", 8, 0.3),
    Sketcher.Constraint("DistanceX", 2, 1, 2, 2, 2.0),
    Sketcher.Constraint("Radius", 6, 0.25),
    Sketcher.Constraint("DistanceY", 1, 2, 1, 1, 1.4),
    Sketcher.Constraint("DistanceY", -1, 1, 0, 3, 14.0),
    Sketcher.Constraint("Angle", 7, Q("-102.4989 deg")),
    Sketcher.Constraint("DistanceY", -1, 1, 8, 3, 13.4),
    Sketcher.Constraint("DistanceX", -1, 1, 0, 3, 4.65),
])
pad6 = body.newObject("PartDesign::Pad", "Pad005")
pad6.Profile = sketch13
pad6.Length = 3
pad6.Reversed = True

# Sketch on YZ plane
sketch14 = body.newObject("Sketcher::SketchObject", "Sketch013")
sketch14.AttachmentSupport = (doc.getObject("YZ_Plane"), [""])
sketch14.MapMode = "FlatFace"
sketch14.AttachmentOffset = App.Placement(App.Vector(0, 0, 2.4), App.Rotation())
add_polygon(sketch14, [(12.7, -2.45), (8.7, -2.45), (8.7, -3.2), (8.78, -3.2), (10.5, -4), (12.53, -4), (12.7, -4.1)])  # lines 0-6
sketch14.addGeometry(Part.LineSegment(App.Vector(12.7, -2.45, 0), App.Vector(8.7, -2.45, 0)), True)  # axis
sketch14.addConstraint([
    Sketcher.Constraint("Horizontal", 0),
    Sketcher.Constraint("Vertical", 1),
    Sketcher.Constraint("Horizontal", 2),
    Sketcher.Constraint("Horizontal", 4),
    Sketcher.Constraint("Vertical", 6),
    Sketcher.Constraint("Horizontal", 7),
    Sketcher.Constraint("Coincident", 7, 1, 6, 2),
    Sketcher.Constraint("Vertical", 1, 2, 7, 2),
    Sketcher.Constraint("DistanceX", 0, 2, 0, 1, 4.0),
    Sketcher.Constraint("Angle", 3, Q("-25 deg")),
    Sketcher.Constraint("Angle", 5, Q("-30.0007 deg")),
    Sketcher.Constraint("DistanceY", 3, 2, -1, 1, 4.0),
    Sketcher.Constraint("Distance", 5, 0.2),
    Sketcher.Constraint("DistanceY", 1, 2, 1, 1, 0.75),
    Sketcher.Constraint("DistanceY", 6, 1, 6, 2, 1.65),
    Sketcher.Constraint("DistanceX", -1, 1, 0, 2, 8.7),
    Sketcher.Constraint("DistanceX", -1, 1, 3, 2, 10.5),
])
groove = body.newObject("PartDesign::Groove", "Groove")
groove.Profile = sketch14
groove.ReferenceAxis = (sketch14, ["Axis0"])
groove.Angle = 360
doc.recompute()

linearpattern3 = body.newObject("PartDesign::LinearPattern", "LinearPattern002")
linearpattern3.Originals = [groove]
linearpattern3.Direction = (doc.getObject("Z_Axis"), [""])
linearpattern3.Mode = "offset"
linearpattern3.Offset = 3.5
linearpattern3.Occurrences = 3
linearpattern3.Reversed = True
body.Tip = linearpattern3

# Sketch on XZ plane
sketch15 = body.newObject("Sketcher::SketchObject", "Sketch014")
sketch15.AttachmentSupport = (doc.getObject("XZ_Plane"), [""])
sketch15.MapMode = "FlatFace"
sketch15.AttachmentOffset = App.Placement(App.Vector(0, 0, -12.7), App.Rotation())
add_polygon(sketch15, [(3.8, -4.4), (0.4, -4.4), (0.4, -4), (3.8, -4)])  # lines 0-3
sketch15.addConstraint([
    Sketcher.Constraint("Horizontal", 0),
    Sketcher.Constraint("Vertical", 1),
    Sketcher.Constraint("Horizontal", 2),
    Sketcher.Constraint("Vertical", 3),
    Sketcher.Constraint("DistanceX", 0, 2, 0, 1, 3.4),
    Sketcher.Constraint("DistanceY", 1, 1, 1, 2, 0.4),
    Sketcher.Constraint("DistanceY", 1, 2, -1, 1, 4.0),
    Sketcher.Constraint("DistanceX", -1, 1, 0, 2, 0.4),
])
pad7 = body.newObject("PartDesign::Pad", "Pad006")
pad7.Profile = sketch15
pad7.Length = 3.85
doc.recompute()

linearpattern4 = body.newObject("PartDesign::LinearPattern", "LinearPattern003")
linearpattern4.Originals = [pad7]
linearpattern4.Direction = (doc.getObject("Z_Axis"), [""])
linearpattern4.Mode = "offset"
linearpattern4.Offset = 3.5
linearpattern4.Occurrences = 2
linearpattern4.Reversed = True
body.Tip = linearpattern4

# Sketch on XZ plane
sketch16 = body.newObject("Sketcher::SketchObject", "Sketch015")
sketch16.AttachmentSupport = (doc.getObject("XZ_Plane"), [""])
sketch16.MapMode = "FlatFace"
sketch16.AttachmentOffset = App.Placement(App.Vector(0, 0, -12.7), App.Rotation())
sketch16.addGeometry([
    Part.LineSegment(App.Vector(11.1, -3, 0), App.Vector(10.5, -3, 0)),
    Part.LineSegment(App.Vector(10.5, -3, 0), App.Vector(10.5, -1.9, 0)),
    Part.LineSegment(App.Vector(10.5, -1.9, 0), App.Vector(11.1, -1.9, 0)),
    Part.ArcOfCircle(Part.Circle(App.Vector(11.1, -2.5, 0), App.Vector(0, 0, 1), 0.6), math.radians(-90), math.radians(90)),
], False)
sketch16.addConstraint([
    Sketcher.Constraint("Coincident", 0, 2, 1, 1),
    Sketcher.Constraint("Coincident", 1, 2, 2, 1),
    Sketcher.Constraint("Tangent", 2, 2, 3, 2),
    Sketcher.Constraint("Tangent", 3, 1, 0, 1),
    Sketcher.Constraint("Horizontal", 0),
    Sketcher.Constraint("Vertical", 1),
    Sketcher.Constraint("Horizontal", 2),
    Sketcher.Constraint("Radius", 3, 0.55),
    Sketcher.Constraint("DistanceY", 0, 2, -1, 1, 3.0),
    Sketcher.Constraint("DistanceX", 0, 2, 0, 1, 0.55),
    Sketcher.Constraint("DistanceX", -1, 1, 0, 2, 10.5),
])
pocket8 = body.newObject("PartDesign::Pocket", "Pocket007")
pocket8.Profile = sketch16
pocket8.Length = 3.7
pocket8.Reversed = True
doc.recompute()

linearpattern5 = body.newObject("PartDesign::LinearPattern", "LinearPattern004")
linearpattern5.Originals = [pocket8]
linearpattern5.Direction = (doc.getObject("Z_Axis"), [""])
linearpattern5.Mode = "offset"
linearpattern5.Offset = 3.5
linearpattern5.Occurrences = 3
linearpattern5.Reversed = True
body.Tip = linearpattern5

# Sketch on XZ plane
sketch17 = body.newObject("Sketcher::SketchObject", "Sketch016")
sketch17.AttachmentSupport = (doc.getObject("XZ_Plane"), [""])
sketch17.MapMode = "FlatFace"
sketch17.AttachmentOffset = App.Placement(App.Vector(0, 0, 5.6), App.Rotation())
sketch17.addGeometry(Part.Circle(App.Vector(6.6, -2.2, 0), App.Vector(0, 0, 1), 0.8), False)
sketch17.addConstraint([
    Sketcher.Constraint("Diameter", 0, 1.6),
    Sketcher.Constraint("DistanceX", -1, 1, 0, 3, 6.6),
    Sketcher.Constraint("DistanceY", 0, 3, -1, 1, 2.2),
])
pocket9 = body.newObject("PartDesign::Pocket", "Pocket008")
pocket9.Profile = sketch17
pocket9.Length = 2
pocket9.Reversed = True
doc.recompute()

linearpattern6 = body.newObject("PartDesign::LinearPattern", "LinearPattern005")
linearpattern6.Originals = [pocket9]
linearpattern6.Direction = (doc.getObject("Z_Axis"), [""])
linearpattern6.Mode = "offset"
linearpattern6.Offset = 3.5
linearpattern6.Occurrences = 2
linearpattern6.Reversed = True
body.Tip = linearpattern6

# Sketch on XZ plane
sketch18 = body.newObject("Sketcher::SketchObject", "Sketch017")
sketch18.AttachmentSupport = (doc.getObject("XZ_Plane"), [""])
sketch18.MapMode = "FlatFace"
sketch18.AttachmentOffset = App.Placement(App.Vector(0, 0, 5.6), App.Rotation())
sketch18.addGeometry([
    Part.LineSegment(App.Vector(7.3, -9.7, 0), App.Vector(5.9, -9.7, 0)),
    Part.ArcOfCircle(Part.Circle(App.Vector(6.6, -9.2, 0), App.Vector(0, 0, 1), 0.8), math.radians(-34), math.radians(214)),
], False)
sketch18.addConstraint([
    Sketcher.Constraint("Coincident", 0, 1, 1, 1),
    Sketcher.Constraint("Coincident", 1, 2, 0, 2),
    Sketcher.Constraint("Horizontal", 0),
    Sketcher.Constraint("Radius", 1, 0.8),
    Sketcher.Constraint("DistanceX", -1, 1, 1, 3, 6.6),
    Sketcher.Constraint("DistanceY", 1, 3, -1, 1, 9.2),
    Sketcher.Constraint("DistanceY", 0, 1, -1, 1, 9.65),
])
pocket10 = body.newObject("PartDesign::Pocket", "Pocket009")
pocket10.Profile = sketch18
pocket10.Length = 2
pocket10.Reversed = True

doc.recompute()
